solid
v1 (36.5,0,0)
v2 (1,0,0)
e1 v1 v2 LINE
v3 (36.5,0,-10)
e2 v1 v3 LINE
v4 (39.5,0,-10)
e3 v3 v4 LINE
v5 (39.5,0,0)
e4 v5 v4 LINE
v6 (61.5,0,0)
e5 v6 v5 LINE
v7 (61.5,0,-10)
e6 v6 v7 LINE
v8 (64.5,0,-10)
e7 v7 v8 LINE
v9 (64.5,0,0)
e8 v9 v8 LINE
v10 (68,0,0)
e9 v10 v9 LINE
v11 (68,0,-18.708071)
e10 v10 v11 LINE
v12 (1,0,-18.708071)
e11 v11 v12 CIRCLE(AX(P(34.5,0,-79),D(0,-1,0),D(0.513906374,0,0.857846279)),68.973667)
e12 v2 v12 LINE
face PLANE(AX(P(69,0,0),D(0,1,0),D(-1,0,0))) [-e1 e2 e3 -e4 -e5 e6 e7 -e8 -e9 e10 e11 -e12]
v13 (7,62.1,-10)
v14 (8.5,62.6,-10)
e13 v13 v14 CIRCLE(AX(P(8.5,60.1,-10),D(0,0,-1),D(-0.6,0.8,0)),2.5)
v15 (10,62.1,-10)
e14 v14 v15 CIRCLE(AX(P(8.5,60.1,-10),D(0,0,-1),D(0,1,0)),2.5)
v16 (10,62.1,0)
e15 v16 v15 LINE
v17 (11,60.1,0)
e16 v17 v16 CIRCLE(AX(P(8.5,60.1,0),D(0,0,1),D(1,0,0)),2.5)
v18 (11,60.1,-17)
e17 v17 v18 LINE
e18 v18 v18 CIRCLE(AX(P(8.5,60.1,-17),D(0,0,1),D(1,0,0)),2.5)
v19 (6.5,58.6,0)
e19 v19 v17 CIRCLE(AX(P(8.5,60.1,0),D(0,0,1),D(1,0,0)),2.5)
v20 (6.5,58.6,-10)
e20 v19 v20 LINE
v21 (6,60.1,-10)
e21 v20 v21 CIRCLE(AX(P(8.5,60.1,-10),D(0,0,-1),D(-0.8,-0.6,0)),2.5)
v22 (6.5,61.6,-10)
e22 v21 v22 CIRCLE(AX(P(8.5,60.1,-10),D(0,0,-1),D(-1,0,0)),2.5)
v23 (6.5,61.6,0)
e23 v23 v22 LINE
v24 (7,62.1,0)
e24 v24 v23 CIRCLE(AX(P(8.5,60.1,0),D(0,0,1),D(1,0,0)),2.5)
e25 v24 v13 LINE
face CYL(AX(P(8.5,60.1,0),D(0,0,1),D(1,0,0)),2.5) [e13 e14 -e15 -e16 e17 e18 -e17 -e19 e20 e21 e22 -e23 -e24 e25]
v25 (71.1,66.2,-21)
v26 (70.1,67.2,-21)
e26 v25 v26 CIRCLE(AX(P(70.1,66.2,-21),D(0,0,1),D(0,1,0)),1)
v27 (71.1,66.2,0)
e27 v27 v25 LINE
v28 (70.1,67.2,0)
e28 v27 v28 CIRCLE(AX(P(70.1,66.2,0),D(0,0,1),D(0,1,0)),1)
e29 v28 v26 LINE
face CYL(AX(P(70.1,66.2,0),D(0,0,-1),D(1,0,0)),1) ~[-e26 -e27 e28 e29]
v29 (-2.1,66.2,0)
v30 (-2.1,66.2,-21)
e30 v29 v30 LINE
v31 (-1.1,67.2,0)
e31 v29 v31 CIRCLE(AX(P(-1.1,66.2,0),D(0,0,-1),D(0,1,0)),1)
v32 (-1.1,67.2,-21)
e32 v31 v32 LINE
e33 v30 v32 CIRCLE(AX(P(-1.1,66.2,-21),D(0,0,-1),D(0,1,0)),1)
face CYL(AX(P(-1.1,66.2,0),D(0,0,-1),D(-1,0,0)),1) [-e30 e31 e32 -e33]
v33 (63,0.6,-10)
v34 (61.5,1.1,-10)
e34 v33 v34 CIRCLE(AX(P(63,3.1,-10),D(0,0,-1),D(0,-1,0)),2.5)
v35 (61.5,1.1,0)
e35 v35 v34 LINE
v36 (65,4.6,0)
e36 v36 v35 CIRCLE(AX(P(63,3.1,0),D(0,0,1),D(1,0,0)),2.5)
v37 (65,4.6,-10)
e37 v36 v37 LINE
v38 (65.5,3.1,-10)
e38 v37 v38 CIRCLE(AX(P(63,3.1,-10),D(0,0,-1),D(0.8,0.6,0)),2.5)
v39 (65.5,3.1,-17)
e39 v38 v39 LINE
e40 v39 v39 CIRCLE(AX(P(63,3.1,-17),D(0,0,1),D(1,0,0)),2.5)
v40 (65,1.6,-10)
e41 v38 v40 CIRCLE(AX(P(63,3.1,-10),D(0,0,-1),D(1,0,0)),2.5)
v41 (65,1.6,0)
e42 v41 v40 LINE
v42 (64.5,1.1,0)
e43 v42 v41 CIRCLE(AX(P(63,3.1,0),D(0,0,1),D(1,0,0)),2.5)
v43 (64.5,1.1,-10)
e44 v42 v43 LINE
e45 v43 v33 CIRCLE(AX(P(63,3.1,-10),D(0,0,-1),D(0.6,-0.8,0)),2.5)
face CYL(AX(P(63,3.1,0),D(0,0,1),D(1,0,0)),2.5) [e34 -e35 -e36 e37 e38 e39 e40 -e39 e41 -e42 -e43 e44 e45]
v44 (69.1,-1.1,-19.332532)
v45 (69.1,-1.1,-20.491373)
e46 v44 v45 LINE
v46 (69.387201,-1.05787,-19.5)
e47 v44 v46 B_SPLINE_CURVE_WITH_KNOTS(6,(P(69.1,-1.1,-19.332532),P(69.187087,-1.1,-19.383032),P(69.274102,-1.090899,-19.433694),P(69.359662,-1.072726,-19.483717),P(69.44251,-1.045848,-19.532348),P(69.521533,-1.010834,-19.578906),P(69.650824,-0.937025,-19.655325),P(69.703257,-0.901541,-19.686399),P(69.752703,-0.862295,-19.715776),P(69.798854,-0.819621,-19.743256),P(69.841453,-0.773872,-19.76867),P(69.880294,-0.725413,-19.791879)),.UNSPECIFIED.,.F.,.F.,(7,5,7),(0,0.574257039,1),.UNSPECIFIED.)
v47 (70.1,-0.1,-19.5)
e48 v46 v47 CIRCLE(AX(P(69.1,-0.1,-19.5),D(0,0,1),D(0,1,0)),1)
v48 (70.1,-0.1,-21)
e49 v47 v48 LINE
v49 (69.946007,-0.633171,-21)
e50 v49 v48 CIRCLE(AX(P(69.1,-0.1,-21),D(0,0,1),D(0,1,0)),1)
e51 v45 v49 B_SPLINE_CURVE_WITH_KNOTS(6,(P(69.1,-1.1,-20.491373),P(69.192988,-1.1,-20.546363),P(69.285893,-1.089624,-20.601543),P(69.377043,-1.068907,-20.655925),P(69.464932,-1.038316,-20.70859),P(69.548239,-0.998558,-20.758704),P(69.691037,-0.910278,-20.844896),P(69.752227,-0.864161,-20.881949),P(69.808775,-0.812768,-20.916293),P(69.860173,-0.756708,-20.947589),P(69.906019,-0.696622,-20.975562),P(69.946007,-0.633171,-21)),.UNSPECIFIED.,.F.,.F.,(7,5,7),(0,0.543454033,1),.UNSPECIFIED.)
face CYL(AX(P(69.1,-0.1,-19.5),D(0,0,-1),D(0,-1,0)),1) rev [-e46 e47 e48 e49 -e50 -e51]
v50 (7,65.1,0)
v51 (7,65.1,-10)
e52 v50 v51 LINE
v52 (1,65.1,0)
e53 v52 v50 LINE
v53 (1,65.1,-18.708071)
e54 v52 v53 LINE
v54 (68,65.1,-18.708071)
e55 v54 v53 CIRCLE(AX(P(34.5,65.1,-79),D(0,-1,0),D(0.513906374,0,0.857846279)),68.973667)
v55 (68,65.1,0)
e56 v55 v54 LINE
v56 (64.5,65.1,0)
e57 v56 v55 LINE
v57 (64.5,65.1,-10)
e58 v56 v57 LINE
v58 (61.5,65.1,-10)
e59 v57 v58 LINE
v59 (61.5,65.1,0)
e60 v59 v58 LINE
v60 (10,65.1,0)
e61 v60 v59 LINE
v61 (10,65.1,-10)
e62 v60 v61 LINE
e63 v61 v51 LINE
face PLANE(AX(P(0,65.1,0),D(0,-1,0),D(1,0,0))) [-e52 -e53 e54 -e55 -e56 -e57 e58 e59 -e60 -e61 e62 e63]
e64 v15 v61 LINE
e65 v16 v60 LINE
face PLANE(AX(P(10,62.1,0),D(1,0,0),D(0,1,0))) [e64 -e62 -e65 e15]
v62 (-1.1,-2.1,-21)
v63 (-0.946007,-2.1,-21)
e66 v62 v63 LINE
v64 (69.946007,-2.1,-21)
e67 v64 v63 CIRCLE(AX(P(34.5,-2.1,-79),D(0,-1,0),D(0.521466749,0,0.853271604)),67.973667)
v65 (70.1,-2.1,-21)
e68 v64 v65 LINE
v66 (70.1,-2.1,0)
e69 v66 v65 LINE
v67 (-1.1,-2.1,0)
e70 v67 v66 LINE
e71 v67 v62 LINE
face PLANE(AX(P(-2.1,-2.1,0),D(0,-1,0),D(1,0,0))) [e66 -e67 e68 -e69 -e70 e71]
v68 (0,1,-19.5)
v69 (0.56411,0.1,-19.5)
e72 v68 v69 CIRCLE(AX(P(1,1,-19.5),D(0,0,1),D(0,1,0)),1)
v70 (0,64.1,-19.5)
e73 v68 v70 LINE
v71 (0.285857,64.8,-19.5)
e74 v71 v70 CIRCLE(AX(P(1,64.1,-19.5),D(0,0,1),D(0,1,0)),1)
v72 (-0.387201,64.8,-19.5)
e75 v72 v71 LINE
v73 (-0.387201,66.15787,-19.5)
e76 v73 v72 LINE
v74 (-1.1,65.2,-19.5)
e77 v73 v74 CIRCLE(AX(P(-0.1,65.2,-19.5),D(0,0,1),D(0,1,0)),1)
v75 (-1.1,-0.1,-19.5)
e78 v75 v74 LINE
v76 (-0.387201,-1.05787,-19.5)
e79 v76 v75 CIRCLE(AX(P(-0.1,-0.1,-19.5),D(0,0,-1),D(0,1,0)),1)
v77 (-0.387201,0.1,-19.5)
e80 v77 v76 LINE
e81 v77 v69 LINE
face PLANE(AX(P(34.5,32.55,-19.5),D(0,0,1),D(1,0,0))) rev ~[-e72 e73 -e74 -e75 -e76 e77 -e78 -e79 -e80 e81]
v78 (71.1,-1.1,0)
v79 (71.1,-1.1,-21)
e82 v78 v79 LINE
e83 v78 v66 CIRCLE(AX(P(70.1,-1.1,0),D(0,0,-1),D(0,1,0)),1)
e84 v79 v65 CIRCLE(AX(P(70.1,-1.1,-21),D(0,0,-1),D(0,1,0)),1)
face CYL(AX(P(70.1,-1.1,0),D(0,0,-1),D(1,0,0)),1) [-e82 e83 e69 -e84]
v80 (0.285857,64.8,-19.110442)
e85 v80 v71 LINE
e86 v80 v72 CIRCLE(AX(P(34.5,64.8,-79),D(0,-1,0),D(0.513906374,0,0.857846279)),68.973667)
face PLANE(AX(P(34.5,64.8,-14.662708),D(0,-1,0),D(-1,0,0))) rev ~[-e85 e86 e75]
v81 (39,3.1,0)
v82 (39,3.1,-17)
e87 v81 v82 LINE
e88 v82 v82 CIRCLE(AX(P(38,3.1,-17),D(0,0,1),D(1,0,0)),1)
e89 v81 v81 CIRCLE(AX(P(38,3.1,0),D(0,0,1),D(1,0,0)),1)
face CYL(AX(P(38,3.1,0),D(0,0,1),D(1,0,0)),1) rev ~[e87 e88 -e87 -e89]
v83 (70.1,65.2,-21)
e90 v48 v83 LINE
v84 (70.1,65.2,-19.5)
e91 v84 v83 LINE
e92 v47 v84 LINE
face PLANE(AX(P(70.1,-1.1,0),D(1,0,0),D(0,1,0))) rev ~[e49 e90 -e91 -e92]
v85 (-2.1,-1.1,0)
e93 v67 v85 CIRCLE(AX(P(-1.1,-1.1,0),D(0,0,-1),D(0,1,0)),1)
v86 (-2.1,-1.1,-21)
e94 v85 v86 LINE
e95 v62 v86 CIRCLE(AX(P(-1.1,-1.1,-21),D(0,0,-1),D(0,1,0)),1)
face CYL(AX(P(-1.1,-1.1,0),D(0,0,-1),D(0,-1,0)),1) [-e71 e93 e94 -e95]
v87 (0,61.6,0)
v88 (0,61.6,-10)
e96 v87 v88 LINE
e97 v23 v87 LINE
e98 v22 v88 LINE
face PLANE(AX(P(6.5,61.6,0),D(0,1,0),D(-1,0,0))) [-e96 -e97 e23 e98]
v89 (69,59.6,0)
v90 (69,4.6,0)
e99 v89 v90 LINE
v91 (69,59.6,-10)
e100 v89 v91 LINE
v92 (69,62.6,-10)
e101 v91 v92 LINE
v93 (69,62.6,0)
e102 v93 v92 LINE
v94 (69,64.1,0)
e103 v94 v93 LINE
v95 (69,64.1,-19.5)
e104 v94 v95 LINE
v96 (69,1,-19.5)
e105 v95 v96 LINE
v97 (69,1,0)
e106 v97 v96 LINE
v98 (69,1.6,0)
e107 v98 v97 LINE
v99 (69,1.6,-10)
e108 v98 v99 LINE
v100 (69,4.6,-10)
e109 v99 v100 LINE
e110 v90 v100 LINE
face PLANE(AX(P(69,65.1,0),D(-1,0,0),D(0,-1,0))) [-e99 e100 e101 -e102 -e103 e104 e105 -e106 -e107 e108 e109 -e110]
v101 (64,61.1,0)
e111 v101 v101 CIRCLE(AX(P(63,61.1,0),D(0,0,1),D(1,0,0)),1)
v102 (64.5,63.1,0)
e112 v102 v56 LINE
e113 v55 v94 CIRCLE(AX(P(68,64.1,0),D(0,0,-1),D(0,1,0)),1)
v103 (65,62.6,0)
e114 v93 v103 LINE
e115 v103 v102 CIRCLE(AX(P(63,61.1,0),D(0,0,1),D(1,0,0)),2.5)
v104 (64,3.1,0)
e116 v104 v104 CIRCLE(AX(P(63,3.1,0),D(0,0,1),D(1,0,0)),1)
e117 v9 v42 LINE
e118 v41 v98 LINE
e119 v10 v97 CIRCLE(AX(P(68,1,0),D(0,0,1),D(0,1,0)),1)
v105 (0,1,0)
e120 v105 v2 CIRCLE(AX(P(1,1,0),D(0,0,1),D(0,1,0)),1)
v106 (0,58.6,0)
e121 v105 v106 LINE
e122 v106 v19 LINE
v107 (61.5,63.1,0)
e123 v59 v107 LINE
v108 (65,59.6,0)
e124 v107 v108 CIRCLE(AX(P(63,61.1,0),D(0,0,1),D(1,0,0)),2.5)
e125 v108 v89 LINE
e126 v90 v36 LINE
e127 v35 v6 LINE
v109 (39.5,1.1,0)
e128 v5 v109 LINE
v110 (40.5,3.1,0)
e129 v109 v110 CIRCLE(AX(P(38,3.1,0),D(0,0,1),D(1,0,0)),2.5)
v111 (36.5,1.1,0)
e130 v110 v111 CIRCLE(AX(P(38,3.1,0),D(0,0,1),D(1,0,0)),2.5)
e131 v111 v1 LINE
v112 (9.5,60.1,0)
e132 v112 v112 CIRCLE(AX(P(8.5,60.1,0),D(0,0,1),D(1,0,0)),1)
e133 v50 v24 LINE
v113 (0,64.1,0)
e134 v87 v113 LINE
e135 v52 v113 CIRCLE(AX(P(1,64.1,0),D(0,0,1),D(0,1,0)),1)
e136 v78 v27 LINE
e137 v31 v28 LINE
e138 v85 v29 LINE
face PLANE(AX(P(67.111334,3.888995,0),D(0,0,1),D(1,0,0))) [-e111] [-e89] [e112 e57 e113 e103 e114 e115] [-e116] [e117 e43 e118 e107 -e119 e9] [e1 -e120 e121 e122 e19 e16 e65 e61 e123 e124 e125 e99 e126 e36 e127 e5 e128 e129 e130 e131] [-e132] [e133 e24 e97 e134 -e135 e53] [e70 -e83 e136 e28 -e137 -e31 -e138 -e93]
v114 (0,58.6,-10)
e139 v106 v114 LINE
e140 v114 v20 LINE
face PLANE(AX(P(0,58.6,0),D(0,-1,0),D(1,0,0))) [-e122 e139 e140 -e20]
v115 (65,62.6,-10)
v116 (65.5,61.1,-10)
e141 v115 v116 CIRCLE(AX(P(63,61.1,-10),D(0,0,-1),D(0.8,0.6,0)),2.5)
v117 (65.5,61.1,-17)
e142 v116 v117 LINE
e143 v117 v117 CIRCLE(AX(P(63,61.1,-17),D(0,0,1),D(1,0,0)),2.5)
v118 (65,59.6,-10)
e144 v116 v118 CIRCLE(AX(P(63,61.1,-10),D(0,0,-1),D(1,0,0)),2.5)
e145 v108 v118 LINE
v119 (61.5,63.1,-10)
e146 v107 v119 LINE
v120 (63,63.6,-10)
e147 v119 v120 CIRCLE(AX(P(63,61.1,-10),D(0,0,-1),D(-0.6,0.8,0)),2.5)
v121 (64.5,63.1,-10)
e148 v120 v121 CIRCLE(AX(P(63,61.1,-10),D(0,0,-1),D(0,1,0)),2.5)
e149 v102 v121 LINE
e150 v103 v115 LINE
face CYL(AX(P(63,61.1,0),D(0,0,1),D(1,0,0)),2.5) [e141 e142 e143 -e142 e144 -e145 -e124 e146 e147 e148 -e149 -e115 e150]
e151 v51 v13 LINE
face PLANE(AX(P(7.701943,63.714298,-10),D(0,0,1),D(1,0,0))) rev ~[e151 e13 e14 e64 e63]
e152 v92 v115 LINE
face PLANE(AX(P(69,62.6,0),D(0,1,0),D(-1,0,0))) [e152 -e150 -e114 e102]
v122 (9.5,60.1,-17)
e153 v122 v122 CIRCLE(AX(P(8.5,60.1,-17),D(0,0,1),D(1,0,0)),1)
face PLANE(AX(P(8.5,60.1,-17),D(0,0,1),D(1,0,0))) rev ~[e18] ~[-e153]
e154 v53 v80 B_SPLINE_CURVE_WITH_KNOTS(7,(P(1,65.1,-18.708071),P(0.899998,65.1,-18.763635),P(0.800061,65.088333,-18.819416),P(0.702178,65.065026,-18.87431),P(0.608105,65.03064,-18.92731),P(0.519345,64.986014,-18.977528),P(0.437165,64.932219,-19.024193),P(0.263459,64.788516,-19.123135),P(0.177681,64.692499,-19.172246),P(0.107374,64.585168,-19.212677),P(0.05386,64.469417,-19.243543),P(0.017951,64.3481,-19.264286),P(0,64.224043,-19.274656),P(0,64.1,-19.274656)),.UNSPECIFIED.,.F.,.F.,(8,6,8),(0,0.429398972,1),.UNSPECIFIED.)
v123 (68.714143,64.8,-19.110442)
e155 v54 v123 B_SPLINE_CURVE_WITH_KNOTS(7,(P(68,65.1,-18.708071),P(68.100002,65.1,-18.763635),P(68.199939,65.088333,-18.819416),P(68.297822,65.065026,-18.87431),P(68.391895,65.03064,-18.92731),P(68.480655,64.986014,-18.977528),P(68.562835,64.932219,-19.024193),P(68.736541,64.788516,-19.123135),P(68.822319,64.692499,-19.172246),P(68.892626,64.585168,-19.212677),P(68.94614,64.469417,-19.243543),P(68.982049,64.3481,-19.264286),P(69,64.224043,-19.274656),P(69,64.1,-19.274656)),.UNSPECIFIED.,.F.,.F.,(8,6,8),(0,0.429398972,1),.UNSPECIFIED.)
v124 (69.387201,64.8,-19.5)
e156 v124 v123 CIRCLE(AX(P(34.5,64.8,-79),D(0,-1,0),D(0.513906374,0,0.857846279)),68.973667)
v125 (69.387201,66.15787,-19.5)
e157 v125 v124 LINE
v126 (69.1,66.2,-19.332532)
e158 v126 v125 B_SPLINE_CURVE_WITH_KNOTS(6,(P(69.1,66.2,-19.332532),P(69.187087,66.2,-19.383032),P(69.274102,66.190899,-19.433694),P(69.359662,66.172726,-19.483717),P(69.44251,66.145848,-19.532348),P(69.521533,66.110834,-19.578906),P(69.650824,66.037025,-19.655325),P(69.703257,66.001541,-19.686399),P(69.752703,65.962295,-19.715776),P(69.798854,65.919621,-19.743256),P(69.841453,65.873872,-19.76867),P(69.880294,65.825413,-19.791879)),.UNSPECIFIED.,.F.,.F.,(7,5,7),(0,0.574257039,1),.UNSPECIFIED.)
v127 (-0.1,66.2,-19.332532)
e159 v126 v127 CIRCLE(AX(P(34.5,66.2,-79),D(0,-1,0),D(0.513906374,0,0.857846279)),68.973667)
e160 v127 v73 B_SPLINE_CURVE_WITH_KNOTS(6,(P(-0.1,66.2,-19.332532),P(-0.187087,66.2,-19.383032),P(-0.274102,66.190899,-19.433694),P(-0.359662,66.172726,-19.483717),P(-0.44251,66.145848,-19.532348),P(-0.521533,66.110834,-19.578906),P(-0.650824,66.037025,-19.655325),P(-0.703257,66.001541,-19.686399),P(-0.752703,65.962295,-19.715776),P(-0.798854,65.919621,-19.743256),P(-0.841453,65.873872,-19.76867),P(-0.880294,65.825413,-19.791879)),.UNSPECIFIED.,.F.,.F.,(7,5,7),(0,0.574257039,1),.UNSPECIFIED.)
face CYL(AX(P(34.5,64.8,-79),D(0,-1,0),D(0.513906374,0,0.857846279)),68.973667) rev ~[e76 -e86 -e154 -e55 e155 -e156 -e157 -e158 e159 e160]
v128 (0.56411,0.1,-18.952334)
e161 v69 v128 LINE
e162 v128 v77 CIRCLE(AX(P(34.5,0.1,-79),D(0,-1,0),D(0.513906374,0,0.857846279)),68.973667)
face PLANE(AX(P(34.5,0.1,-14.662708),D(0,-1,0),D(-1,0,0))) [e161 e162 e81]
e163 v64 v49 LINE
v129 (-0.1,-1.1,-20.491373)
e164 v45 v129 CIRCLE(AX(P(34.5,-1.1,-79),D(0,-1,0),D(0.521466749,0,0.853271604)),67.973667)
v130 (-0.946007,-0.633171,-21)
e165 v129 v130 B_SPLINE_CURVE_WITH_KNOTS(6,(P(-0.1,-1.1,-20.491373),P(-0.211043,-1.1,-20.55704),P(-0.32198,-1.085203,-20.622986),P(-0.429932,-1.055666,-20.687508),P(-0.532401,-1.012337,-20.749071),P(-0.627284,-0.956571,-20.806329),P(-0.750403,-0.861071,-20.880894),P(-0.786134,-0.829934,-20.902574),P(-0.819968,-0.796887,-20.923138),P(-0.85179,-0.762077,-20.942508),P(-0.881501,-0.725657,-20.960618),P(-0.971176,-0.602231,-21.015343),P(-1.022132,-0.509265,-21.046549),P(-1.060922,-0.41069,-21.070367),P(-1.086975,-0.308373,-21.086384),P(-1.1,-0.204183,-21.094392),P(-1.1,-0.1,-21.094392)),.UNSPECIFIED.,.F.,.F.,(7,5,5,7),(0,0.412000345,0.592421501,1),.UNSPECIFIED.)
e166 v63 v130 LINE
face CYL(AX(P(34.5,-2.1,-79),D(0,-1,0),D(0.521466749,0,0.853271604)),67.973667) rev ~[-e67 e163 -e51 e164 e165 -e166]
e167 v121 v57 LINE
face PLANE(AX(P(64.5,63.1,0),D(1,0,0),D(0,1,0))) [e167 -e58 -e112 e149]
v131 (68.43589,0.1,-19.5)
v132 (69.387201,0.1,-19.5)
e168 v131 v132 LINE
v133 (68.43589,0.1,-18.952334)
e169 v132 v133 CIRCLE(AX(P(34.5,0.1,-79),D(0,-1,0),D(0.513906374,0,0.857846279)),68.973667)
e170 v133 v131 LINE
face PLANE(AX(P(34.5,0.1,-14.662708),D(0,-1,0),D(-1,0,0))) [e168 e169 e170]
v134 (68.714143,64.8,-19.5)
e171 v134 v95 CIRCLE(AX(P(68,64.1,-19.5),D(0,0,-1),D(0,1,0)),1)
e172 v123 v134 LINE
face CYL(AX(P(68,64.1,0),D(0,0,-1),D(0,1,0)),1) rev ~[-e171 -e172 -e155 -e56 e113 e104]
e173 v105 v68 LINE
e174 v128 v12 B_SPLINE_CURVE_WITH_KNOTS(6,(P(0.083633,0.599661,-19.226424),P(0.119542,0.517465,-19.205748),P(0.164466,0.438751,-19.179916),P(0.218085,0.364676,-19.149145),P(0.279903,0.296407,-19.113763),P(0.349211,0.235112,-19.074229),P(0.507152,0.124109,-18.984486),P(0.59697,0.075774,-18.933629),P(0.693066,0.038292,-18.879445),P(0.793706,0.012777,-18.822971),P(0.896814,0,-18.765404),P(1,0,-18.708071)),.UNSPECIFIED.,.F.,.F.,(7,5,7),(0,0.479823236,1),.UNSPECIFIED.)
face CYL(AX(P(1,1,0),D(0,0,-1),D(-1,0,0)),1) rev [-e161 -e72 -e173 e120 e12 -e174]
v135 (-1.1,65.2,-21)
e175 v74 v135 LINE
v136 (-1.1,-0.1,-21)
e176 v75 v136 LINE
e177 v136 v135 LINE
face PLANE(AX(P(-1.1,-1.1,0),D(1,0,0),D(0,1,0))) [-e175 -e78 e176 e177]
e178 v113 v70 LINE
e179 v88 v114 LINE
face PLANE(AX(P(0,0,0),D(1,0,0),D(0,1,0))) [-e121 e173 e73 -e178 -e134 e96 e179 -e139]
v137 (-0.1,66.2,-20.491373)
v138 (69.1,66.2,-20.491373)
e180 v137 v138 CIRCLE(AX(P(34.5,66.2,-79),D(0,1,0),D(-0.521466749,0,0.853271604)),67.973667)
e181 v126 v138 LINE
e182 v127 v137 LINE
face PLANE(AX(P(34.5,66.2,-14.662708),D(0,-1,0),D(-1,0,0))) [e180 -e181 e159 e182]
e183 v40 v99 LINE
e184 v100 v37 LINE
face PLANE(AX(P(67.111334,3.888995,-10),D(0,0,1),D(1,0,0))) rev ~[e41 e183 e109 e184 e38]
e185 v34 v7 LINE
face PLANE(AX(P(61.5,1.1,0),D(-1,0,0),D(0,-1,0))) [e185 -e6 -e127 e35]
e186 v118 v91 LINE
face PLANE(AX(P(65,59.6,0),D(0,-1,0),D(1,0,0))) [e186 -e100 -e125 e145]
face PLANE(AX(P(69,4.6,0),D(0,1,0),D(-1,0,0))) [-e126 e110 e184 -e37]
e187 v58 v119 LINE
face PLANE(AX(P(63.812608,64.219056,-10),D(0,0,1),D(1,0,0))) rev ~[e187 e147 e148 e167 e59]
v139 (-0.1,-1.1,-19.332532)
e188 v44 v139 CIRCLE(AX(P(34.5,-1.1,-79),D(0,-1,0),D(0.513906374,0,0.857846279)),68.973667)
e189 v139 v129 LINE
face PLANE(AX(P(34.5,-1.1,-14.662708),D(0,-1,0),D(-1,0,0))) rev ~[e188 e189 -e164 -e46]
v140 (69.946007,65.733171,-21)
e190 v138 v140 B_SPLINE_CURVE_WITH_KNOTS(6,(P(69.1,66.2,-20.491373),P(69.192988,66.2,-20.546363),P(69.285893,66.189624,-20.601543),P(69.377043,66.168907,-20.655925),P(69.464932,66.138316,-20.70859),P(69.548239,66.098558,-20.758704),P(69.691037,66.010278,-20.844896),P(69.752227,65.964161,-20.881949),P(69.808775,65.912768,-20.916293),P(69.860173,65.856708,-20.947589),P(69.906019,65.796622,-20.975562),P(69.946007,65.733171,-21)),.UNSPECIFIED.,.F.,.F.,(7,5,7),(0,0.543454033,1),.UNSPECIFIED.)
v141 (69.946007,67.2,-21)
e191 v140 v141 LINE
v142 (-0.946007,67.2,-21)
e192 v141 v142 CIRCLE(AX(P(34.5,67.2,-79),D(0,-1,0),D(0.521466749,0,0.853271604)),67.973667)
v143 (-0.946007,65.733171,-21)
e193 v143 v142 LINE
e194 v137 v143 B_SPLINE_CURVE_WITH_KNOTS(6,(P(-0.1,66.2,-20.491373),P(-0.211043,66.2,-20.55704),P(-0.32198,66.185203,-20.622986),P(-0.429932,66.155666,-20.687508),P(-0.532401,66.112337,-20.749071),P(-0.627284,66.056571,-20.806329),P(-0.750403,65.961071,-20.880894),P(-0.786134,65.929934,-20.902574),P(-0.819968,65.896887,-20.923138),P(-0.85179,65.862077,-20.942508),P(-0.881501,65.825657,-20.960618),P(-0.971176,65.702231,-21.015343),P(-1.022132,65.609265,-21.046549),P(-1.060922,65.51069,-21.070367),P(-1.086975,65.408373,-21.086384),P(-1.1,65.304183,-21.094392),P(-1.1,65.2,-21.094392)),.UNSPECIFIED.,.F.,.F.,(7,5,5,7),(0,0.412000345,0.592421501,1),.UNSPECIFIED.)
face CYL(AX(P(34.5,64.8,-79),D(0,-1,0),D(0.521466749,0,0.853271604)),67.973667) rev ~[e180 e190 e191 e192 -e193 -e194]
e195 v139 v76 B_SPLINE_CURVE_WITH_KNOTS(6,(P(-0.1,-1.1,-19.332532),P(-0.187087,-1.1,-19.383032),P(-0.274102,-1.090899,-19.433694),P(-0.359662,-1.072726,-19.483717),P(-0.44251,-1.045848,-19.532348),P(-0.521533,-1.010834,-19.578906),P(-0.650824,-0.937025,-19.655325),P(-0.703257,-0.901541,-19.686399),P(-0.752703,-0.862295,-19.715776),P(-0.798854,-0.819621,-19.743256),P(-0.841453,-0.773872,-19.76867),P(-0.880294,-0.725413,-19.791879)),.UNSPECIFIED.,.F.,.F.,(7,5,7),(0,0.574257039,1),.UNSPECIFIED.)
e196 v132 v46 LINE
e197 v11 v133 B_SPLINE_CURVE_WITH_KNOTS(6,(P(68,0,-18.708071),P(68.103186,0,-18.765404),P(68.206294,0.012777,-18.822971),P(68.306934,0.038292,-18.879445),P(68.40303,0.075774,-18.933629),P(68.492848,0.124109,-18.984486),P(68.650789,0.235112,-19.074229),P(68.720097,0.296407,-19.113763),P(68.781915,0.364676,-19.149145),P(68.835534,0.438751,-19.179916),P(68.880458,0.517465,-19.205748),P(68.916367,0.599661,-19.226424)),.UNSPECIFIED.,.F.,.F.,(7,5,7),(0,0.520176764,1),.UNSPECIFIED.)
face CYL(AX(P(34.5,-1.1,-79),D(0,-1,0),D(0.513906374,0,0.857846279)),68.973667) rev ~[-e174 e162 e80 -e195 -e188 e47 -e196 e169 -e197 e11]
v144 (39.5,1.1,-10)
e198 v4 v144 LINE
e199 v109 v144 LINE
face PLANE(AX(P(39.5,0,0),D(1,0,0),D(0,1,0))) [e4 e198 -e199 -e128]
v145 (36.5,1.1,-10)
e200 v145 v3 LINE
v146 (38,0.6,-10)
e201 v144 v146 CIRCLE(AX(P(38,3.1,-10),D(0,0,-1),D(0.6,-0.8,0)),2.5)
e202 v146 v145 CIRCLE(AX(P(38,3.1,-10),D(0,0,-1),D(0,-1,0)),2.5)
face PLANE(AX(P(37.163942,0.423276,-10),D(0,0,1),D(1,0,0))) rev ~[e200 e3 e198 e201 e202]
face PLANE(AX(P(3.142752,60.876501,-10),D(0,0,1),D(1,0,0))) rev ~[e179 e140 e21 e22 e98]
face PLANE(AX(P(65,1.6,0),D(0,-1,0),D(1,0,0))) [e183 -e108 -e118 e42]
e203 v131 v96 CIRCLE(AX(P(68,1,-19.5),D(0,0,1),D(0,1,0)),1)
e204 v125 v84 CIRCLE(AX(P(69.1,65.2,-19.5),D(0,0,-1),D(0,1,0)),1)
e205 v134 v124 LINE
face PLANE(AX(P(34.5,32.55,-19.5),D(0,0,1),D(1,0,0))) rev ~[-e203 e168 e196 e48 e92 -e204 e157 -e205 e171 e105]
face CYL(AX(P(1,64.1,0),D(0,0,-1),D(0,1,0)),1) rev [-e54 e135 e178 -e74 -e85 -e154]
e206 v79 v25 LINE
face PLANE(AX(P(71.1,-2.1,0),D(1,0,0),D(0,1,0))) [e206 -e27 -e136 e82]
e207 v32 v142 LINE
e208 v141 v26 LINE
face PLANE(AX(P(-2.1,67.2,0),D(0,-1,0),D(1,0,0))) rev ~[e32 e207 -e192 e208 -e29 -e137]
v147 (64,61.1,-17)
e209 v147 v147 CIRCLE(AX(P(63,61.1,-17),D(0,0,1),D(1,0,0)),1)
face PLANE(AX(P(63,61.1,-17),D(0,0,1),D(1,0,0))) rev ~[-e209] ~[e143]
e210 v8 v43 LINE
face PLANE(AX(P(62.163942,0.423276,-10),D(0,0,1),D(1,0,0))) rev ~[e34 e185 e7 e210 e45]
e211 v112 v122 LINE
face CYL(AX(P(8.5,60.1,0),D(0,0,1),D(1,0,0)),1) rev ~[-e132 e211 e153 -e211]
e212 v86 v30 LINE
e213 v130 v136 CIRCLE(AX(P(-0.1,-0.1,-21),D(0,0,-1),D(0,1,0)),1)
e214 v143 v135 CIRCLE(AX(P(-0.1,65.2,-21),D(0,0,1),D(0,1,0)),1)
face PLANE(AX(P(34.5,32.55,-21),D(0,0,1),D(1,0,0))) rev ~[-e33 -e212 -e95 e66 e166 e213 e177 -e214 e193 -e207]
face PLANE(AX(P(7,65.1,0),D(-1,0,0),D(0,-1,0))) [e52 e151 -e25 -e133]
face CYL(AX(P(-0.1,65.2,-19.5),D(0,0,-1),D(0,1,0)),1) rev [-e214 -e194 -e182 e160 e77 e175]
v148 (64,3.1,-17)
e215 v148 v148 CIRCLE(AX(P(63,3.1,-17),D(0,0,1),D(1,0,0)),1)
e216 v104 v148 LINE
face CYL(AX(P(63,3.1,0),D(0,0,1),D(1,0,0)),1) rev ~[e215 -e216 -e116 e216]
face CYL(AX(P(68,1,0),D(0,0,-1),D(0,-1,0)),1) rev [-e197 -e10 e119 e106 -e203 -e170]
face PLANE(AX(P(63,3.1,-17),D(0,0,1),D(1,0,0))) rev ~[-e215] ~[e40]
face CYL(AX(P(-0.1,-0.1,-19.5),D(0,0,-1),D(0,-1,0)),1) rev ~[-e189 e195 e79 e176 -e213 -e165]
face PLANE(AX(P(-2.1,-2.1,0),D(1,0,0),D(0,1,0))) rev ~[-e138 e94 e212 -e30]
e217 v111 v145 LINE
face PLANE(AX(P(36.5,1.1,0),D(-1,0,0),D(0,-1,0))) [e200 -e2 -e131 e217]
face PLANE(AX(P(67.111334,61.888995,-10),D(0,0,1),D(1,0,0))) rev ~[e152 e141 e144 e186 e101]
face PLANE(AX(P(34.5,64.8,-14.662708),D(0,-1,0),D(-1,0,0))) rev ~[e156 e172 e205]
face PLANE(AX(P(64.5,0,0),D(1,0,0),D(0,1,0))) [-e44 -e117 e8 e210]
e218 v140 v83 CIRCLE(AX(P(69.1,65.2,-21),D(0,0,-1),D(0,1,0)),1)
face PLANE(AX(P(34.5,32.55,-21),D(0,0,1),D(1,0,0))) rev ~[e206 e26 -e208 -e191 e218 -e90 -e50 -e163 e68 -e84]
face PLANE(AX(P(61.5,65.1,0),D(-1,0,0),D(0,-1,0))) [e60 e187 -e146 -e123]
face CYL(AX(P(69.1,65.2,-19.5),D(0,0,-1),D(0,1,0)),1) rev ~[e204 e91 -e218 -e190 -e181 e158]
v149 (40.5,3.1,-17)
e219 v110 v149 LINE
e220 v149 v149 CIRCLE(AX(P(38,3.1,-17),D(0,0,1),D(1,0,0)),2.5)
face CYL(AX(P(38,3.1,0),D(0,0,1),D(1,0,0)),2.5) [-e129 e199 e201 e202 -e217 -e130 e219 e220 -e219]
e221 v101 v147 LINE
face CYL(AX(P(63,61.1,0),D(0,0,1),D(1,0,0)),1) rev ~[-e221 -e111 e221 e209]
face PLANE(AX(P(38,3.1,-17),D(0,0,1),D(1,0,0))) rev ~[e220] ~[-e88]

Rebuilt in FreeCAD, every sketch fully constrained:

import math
import FreeCAD as App
import Part
import Sketcher


def edges_at(feature, points):
    """Names of the edges that pass closest to the given points."""
    edges = feature.Shape.Edges
    near = lambda p: min(range(len(edges)), key=lambda i: edges[i].distToShape(Part.Vertex(*p))[0])
    return sorted({f"Edge{near(p) + 1}" for p in points})


def add_polygon(sketch, points):
    """Adds a closed chain of lines whose ends are joined by coincident constraints."""
    first, n = sketch.GeometryCount, len(points)
    for a, b in zip(points, points[1:] + points[:1]):
        sketch.addGeometry(Part.LineSegment(App.Vector(*a, 0), App.Vector(*b, 0)), False)
    for i in range(n):
        sketch.addConstraint(Sketcher.Constraint("Coincident", first + i, 2, first + (i + 1) % n, 1))

doc = App.newDocument("Part")
params = doc.addObject("Spreadsheet::Sheet", "Params")
for row, (alias, value) in enumerate([
    ("sketch1_diameter", "5 mm"),
    ("sketch1_diameter2", "2 mm"),
    ("pad1_length", "17 mm"),
    ("sketch2_diameter", "5 mm"),
    ("sketch2_diameter2", "2 mm"),
    ("pad2_length", "17 mm"),
    ("sketch3_diameter", "5 mm"),
    ("sketch3_diameter2", "2 mm"),
    ("pad3_length", "17 mm"),
    ("sketch4_diameter", "5 mm"),
    ("sketch4_diameter2", "2 mm"),
    ("pad4_length", "17 mm"),
    ("sketch5_width", "73.2 mm"),
    ("sketch5_width2", "71.2 mm"),
    ("sketch5_height", "69.3 mm"),
    ("sketch5_height2", "67.3 mm"),
    ("pad5_length", "21 mm"),
    ("sketch6_width", "69 mm"),
    ("sketch6_width2", "71.2 mm"),
    ("sketch6_height", "67.3 mm"),
    ("sketch6_height2", "65.1 mm"),
    ("pad6_length", "19.5 mm"),
    ("pocket1_length", "2.1 mm"),
    ("pocket2_length", "1.2 mm"),
    ("pocket3_length", "1.4 mm"),
    ("sketch10_radius", "2.5 mm"),
    ("sketch10_width", "3 mm"),
    ("sketch10_width2", "4 mm"),
    ("sketch10_width3", "6.5 mm"),
    ("sketch10_height", "1.1 mm"),
    ("pad7_length", "10 mm"),
    ("pocket4_length", "10 mm"),
    ("fillet_radius", "1 mm"),
    ("fillet2_radius", "1 mm"),
], start=1):
    params.set(f"A{row}", alias)
    params.set(f"B{row}", "=" + value)
    params.setAlias(f"B{row}", alias)

body = doc.addObject("PartDesign::Body", "Body")

# Sketch on XY plane
sketch1 = body.newObject("Sketcher::SketchObject", "Sketch")
sketch1.AttachmentSupport = (doc.getObject("XY_Plane"), [""])
sketch1.MapMode = "FlatFace"
sketch1.addGeometry([
    Part.Circle(App.Vector(63, 61.1, 0), App.Vector(0, 0, 1), 2.5),
    Part.Circle(App.Vector(63, 61.1, 0), App.Vector(0, 0, 1), 1),
], False)
sketch1.addConstraint([
    Sketcher.Constraint("Coincident", 1, 3, 0, 3),
    Sketcher.Constraint("Diameter", 0, 5.0),
    Sketcher.Constraint("Diameter", 1, 2.0),
    Sketcher.Constraint("DistanceX", -1, 1, 0, 3, 63.0),
    Sketcher.Constraint("DistanceY", -1, 1, 0, 3, 61.1),
])
sketch1.setExpression("Constraints[1]", "Params.sketch1_diameter")
sketch1.setExpression("Constraints[2]", "Params.sketch1_diameter2")
pad1 = body.newObject("PartDesign::Pad", "Pad")
pad1.Profile = sketch1
pad1.setExpression("Length", "Params.pad1_length")
pad1.Reversed = True
body2 = doc.addObject("PartDesign::Body", "Body001")

# Sketch on XY plane
sketch2 = body2.newObject("Sketcher::SketchObject", "Sketch001")
sketch2.AttachmentSupport = (doc.getObject("XY_Plane001"), [""])
sketch2.MapMode = "FlatFace"
sketch2.addGeometry([
    Part.Circle(App.Vector(63, 3.1, 0), App.Vector(0, 0, 1), 2.5),
    Part.Circle(App.Vector(63, 3.1, 0), App.Vector(0, 0, 1), 1),
], False)
sketch2.addConstraint([
    Sketcher.Constraint("Coincident", 1, 3, 0, 3),
    Sketcher.Constraint("Diameter", 0, 5.0),
    Sketcher.Constraint("Diameter", 1, 2.0),
    Sketcher.Constraint("DistanceX", -1, 1, 0, 3, 63.0),
    Sketcher.Constraint("DistanceY", -1, 1, 0, 3, 3.1),
])
sketch2.setExpression("Constraints[1]", "Params.sketch2_diameter")
sketch2.setExpression("Constraints[2]", "Params.sketch2_diameter2")
pad2 = body2.newObject("PartDesign::Pad", "Pad001")
pad2.Profile = sketch2
pad2.setExpression("Length", "Params.pad2_length")
pad2.Reversed = True
body3 = doc.addObject("PartDesign::Body", "Body002")

# Sketch on XY plane
sketch3 = body3.newObject("Sketcher::SketchObject", "Sketch002")
sketch3.AttachmentSupport = (doc.getObject("XY_Plane002"), [""])
sketch3.MapMode = "FlatFace"
sketch3.addGeometry([
    Part.Circle(App.Vector(8.5, 60.1, 0), App.Vector(0, 0, 1), 2.5),
    Part.Circle(App.Vector(8.5, 60.1, 0), App.Vector(0, 0, 1), 1),
], False)
sketch3.addConstraint([
    Sketcher.Constraint("Coincident", 1, 3, 0, 3),
    Sketcher.Constraint("Diameter", 0, 5.0),
    Sketcher.Constraint("Diameter", 1, 2.0),
    Sketcher.Constraint("DistanceX", -1, 1, 0, 3, 8.5),
    Sketcher.Constraint("DistanceY", -1, 1, 0, 3, 60.1),
])
sketch3.setExpression("Constraints[1]", "Params.sketch3_diameter")
sketch3.setExpression("Constraints[2]", "Params.sketch3_diameter2")
pad3 = body3.newObject("PartDesign::Pad", "Pad002")
pad3.Profile = sketch3
pad3.setExpression("Length", "Params.pad3_length")
pad3.Reversed = True
body4 = doc.addObject("PartDesign::Body", "Body003")

# Sketch on XY plane
sketch4 = body4.newObject("Sketcher::SketchObject", "Sketch003")
sketch4.AttachmentSupport = (doc.getObject("XY_Plane003"), [""])
sketch4.MapMode = "FlatFace"
sketch4.addGeometry([
    Part.Circle(App.Vector(38, 3.1, 0), App.Vector(0, 0, 1), 2.5),
    Part.Circle(App.Vector(38, 3.1, 0), App.Vector(0, 0, 1), 1),
], False)
sketch4.addConstraint([
    Sketcher.Constraint("Coincident", 1, 3, 0, 3),
    Sketcher.Constraint("Diameter", 0, 5.0),
    Sketcher.Constraint("Diameter", 1, 2.0),
    Sketcher.Constraint("DistanceX", -1, 1, 0, 3, 38.0),
    Sketcher.Constraint("DistanceY", -1, 1, 0, 3, 3.1),
])
sketch4.setExpression("Constraints[1]", "Params.sketch4_diameter")
sketch4.setExpression("Constraints[2]", "Params.sketch4_diameter2")
pad4 = body4.newObject("PartDesign::Pad", "Pad003")
pad4.Profile = sketch4
pad4.setExpression("Length", "Params.pad4_length")
pad4.Reversed = True
body5 = doc.addObject("PartDesign::Body", "Body004")

# Sketch on XY plane
sketch5 = body5.newObject("Sketcher::SketchObject", "Sketch004")
sketch5.AttachmentSupport = (doc.getObject("XY_Plane004"), [""])
sketch5.MapMode = "FlatFace"
add_polygon(sketch5, [(-2.1, 67.2), (-2.1, -2.1), (71.1, -2.1), (71.1, 67.2)])  # lines 0-3
add_polygon(sketch5, [(70.1, -1.1), (-1.1, -1.1), (-1.1, 66.2), (70.1, 66.2)])  # lines 4-7
sketch5.addConstraint([
    Sketcher.Constraint("Vertical", 0),
    Sketcher.Constraint("Horizontal", 1),
    Sketcher.Constraint("Vertical", 2),
    Sketcher.Constraint("Horizontal", 3),
    Sketcher.Constraint("Horizontal", 4),
    Sketcher.Constraint("Vertical", 5),
    Sketcher.Constraint("Horizontal", 6),
    Sketcher.Constraint("Vertical", 7),
    Sketcher.Constraint("DistanceX", 1, 1, 1, 2, 73.2),
    Sketcher.Constraint("DistanceX", 4, 2, 4, 1, 71.2),
    Sketcher.Constraint("DistanceY", 0, 2, 0, 1, 69.3),
    Sketcher.Constraint("DistanceY", 5, 1, 5, 2, 67.3),
    Sketcher.Constraint("DistanceX", 0, 2, 4, 2, 1.0),
    Sketcher.Constraint("DistanceY", 0, 2, 4, 2, 1.0),
    Sketcher.Constraint("DistanceX", 0, 2, -1, 1, 2.1),
    Sketcher.Constraint("DistanceY", 0, 2, -1, 1, 2.1),
])
sketch5.setExpression("Constraints[16]", "Params.sketch5_width")
sketch5.setExpression("Constraints[17]", "Params.sketch5_width2")
sketch5.setExpression("Constraints[18]", "Params.sketch5_height")
sketch5.setExpression("Constraints[19]", "Params.sketch5_height2")
pad5 = body5.newObject("PartDesign::Pad", "Pad004")
pad5.Profile = sketch5
pad5.setExpression("Length", "Params.pad5_length")
pad5.Reversed = True

# Sketch on XY plane
sketch6 = body5.newObject("Sketcher::SketchObject", "Sketch005")
sketch6.AttachmentSupport = (doc.getObject("XY_Plane004"), [""])
sketch6.MapMode = "FlatFace"
add_polygon(sketch6, [(-1.1, 66.2), (-1.1, -1.1), (70.1, -1.1), (70.1, 66.2)])  # lines 0-3
add_polygon(sketch6, [(69, 0), (0, 0), (0, 65.1), (69, 65.1)])  # lines 4-7
sketch6.addConstraint([
    Sketcher.Constraint("Vertical", 0),
    Sketcher.Constraint("Horizontal", 1),
    Sketcher.Constraint("Vertical", 2),
    Sketcher.Constraint("Horizontal", 3),
    Sketcher.Constraint("Horizontal", 4),
    Sketcher.Constraint("Vertical", 5),
    Sketcher.Constraint("Horizontal", 6),
    Sketcher.Constraint("Vertical", 7),
    Sketcher.Constraint("Coincident", 4, 2, -1, 1),
    Sketcher.Constraint("DistanceX", 4, 2, 4, 1, 69.0),
    Sketcher.Constraint("DistanceX", 1, 1, 1, 2, 71.2),
    Sketcher.Constraint("DistanceY", 0, 2, 0, 1, 67.3),
    Sketcher.Constraint("DistanceY", 5, 1, 5, 2, 65.1),
    Sketcher.Constraint("DistanceX", 0, 2, -1, 1, 1.1),
    Sketcher.Constraint("DistanceY", 0, 2, -1, 1, 1.1),
])
sketch6.setExpression("Constraints[17]", "Params.sketch6_width")
sketch6.setExpression("Constraints[18]", "Params.sketch6_width2")
sketch6.setExpression("Constraints[19]", "Params.sketch6_height")
sketch6.setExpression("Constraints[20]", "Params.sketch6_height2")
pad6 = body5.newObject("PartDesign::Pad", "Pad005")
pad6.Profile = sketch6
pad6.setExpression("Length", "Params.pad6_length")
pad6.Reversed = True

# Sketch on XZ plane
sketch7 = body5.newObject("Sketcher::SketchObject", "Sketch006")
sketch7.AttachmentSupport = (doc.getObject("XZ_Plane004"), [""])
sketch7.MapMode = "FlatFace"
sketch7.AttachmentOffset = App.Placement(App.Vector(0, 0, 2.1), App.Rotation())
sketch7.addGeometry([
    Part.ArcOfCircle(Part.Circle(App.Vector(34.5, -79, 0), App.Vector(0, 0, 1), 67.973667), math.radians(58.56931), math.radians(121.43069)),
    Part.ArcOfCircle(Part.Circle(App.Vector(34.5, -79, 0), App.Vector(0, 0, 1), 67.973667), math.radians(121.43069), math.radians(180)),
    Part.ArcOfCircle(Part.Circle(App.Vector(34.5, -79, 0), App.Vector(0, 0, 1), 67.973667), math.radians(180), math.radians(418.56931)),
], False)
sketch7.addConstraint([
    Sketcher.Constraint("Tangent", 0, 2, 1, 1),
    Sketcher.Constraint("Tangent", 1, 2, 2, 1),
    Sketcher.Constraint("Tangent", 2, 2, 0, 1),
    Sketcher.Constraint("Horizontal", 2, 3, 1, 2),
    Sketcher.Constraint("Horizontal", 0, 2, 2, 2),
    Sketcher.Constraint("DistanceY", 0, 3, -1, 1, 79.0),
    Sketcher.Constraint("DistanceY", 0, 2, -1, 1, 21.0),
    Sketcher.Constraint("DistanceX", -1, 1, 0, 3, 34.5),
    Sketcher.Constraint("Radius", 0, 67.973667),
])
pocket1 = body5.newObject("PartDesign::Pocket", "Pocket")
pocket1.Profile = sketch7
pocket1.setExpression("Length", "Params.pocket1_length")

# Sketch on XZ plane
sketch8 = body5.newObject("Sketcher::SketchObject", "Sketch007")
sketch8.AttachmentSupport = (doc.getObject("XZ_Plane004"), [""])
sketch8.MapMode = "FlatFace"
sketch8.AttachmentOffset = App.Placement(App.Vector(0, 0, 1.1), App.Rotation())
sketch8.addGeometry([
    Part.LineSegment(App.Vector(-0.946007, -19.831196, 0), App.Vector(-0.946007, -21, 0)),
    Part.ArcOfCircle(Part.Circle(App.Vector(34.5, -79, 0), App.Vector(0, 0, 1), 67.973667), math.radians(58.56931), math.radians(121.43069)),
    Part.LineSegment(App.Vector(69.946007, -21, 0), App.Vector(69.946007, -19.831196, 0)),
    Part.ArcOfCircle(Part.Circle(App.Vector(34.5, -79, 0), App.Vector(0, 0, 1), 68.973667), math.radians(59.075617), math.radians(120.924383)),
], False)
sketch8.addConstraint([
    Sketcher.Constraint("Coincident", 0, 2, 1, 2),
    Sketcher.Constraint("Coincident", 1, 1, 2, 1),
    Sketcher.Constraint("Coincident", 2, 2, 3, 1),
    Sketcher.Constraint("Coincident", 3, 2, 0, 1),
    Sketcher.Constraint("Vertical", 0),
    Sketcher.Constraint("Vertical", 2),
    Sketcher.Constraint("Coincident", 3, 3, 1, 3),
    Sketcher.Constraint("Horizontal", 0, 2, 1, 1),
    Sketcher.Constraint("DistanceY", 1, 3, -1, 1, 79.0),
    Sketcher.Constraint("DistanceY", 0, 2, -1, 1, 21.0),
    Sketcher.Constraint("DistanceX", -1, 1, 1, 3, 34.5),
    Sketcher.Constraint("Radius", 1, 67.973667),
    Sketcher.Constraint("Radius", 3, 68.973667),
])
pocket2 = body5.newObject("PartDesign::Pocket", "Pocket001")
pocket2.Profile = sketch8
pocket2.setExpression("Length", "Params.pocket2_length")

# Sketch on XZ plane
sketch9 = body5.newObject("Sketcher::SketchObject", "Sketch008")
sketch9.AttachmentSupport = (doc.getObject("XZ_Plane004"), [""])
sketch9.MapMode = "FlatFace"
sketch9.AttachmentOffset = App.Placement(App.Vector(0, 0, -64.8), App.Rotation())
sketch9.addGeometry([
    Part.LineSegment(App.Vector(-0.946007, -19.831196, 0), App.Vector(-0.946007, -21, 0)),
    Part.ArcOfCircle(Part.Circle(App.Vector(34.5, -79, 0), App.Vector(0, 0, 1), 67.973667), math.radians(58.56931), math.radians(121.43069)),
    Part.LineSegment(App.Vector(69.946007, -21, 0), App.Vector(69.946007, -19.831196, 0)),
    Part.ArcOfCircle(Part.Circle(App.Vector(34.5, -79, 0), App.Vector(0, 0, 1), 68.973667), math.radians(59.075617), math.radians(120.924383)),
], False)
sketch9.addConstraint([
    Sketcher.Constraint("Coincident", 0, 2, 1, 2),
    Sketcher.Constraint("Coincident", 1, 1, 2, 1),
    Sketcher.Constraint("Coincident", 2, 2, 3, 1),
    Sketcher.Constraint("Coincident", 3, 2, 0, 1),
    Sketcher.Constraint("Vertical", 0),
    Sketcher.Constraint("Vertical", 2),
    Sketcher.Constraint("Coincident", 3, 3, 1, 3),
    Sketcher.Constraint("Horizontal", 0, 2, 1, 1),
    Sketcher.Constraint("DistanceY", 1, 3, -1, 1, 79.0),
    Sketcher.Constraint("DistanceY", 0, 2, -1, 1, 21.0),
    Sketcher.Constraint("DistanceX", -1, 1, 1, 3, 34.5),
    Sketcher.Constraint("Radius", 1, 67.973667),
    Sketcher.Constraint("Radius", 3, 68.973667),
])
pocket3 = body5.newObject("PartDesign::Pocket", "Pocket002")
pocket3.Profile = sketch9
pocket3.setExpression("Length", "Params.pocket3_length")
body.AllowCompound = True
doc.recompute()

boolean = body.newObject("PartDesign::Boolean", "Boolean")
boolean.Type = "Fuse"
boolean.addObjects([body2])
doc.recompute()

boolean2 = body.newObject("PartDesign::Boolean", "Boolean001")
boolean2.Type = "Fuse"
boolean2.addObjects([body3])
doc.recompute()

boolean3 = body.newObject("PartDesign::Boolean", "Boolean002")
boolean3.Type = "Fuse"
boolean3.addObjects([body4])
doc.recompute()

boolean4 = body.newObject("PartDesign::Boolean", "Boolean003")
boolean4.Type = "Fuse"
boolean4.addObjects([body5])

# Sketch on XY plane
sketch10 = body.newObject("Sketcher::SketchObject", "Sketch009")
sketch10.AttachmentSupport = (doc.getObject("XY_Plane"), [""])
sketch10.MapMode = "FlatFace"
sketch10.addGeometry([
    Part.LineSegment(App.Vector(36.5, 1.1, 0), App.Vector(36.5, 0, 0)),  # 0
    Part.LineSegment(App.Vector(36.5, 0, 0), App.Vector(39.5, 0, 0)),  # 1
    Part.LineSegment(App.Vector(39.5, 0, 0), App.Vector(39.5, 1.1, 0)),  # 2
    Part.ArcOfCircle(Part.Circle(App.Vector(38, 3.1, 0), App.Vector(0, 0, 1), 2.5), math.radians(-90), math.radians(-53.130102)),  # 3
    Part.ArcOfCircle(Part.Circle(App.Vector(38, 3.1, 0), App.Vector(0, 0, 1), 2.5), math.radians(-126.869898), math.radians(-90)),  # 4
    Part.LineSegment(App.Vector(61.5, 1.1, 0), App.Vector(61.5, 0, 0)),  # 5
    Part.LineSegment(App.Vector(61.5, 0, 0), App.Vector(64.5, 0, 0)),  # 6
    Part.LineSegment(App.Vector(64.5, 0, 0), App.Vector(64.5, 1.1, 0)),  # 7
    Part.ArcOfCircle(Part.Circle(App.Vector(63, 3.1, 0), App.Vector(0, 0, 1), 2.5), math.radians(-90), math.radians(-53.130102)),  # 8
    Part.ArcOfCircle(Part.Circle(App.Vector(63, 3.1, 0), App.Vector(0, 0, 1), 2.5), math.radians(-126.869898), math.radians(-90)),  # 9
    Part.LineSegment(App.Vector(69, 4.6, 0), App.Vector(65, 4.6, 0)),  # 10
    Part.ArcOfCircle(Part.Circle(App.Vector(63, 3.1, 0), App.Vector(0, 0, 1), 2.5), math.radians(0), math.radians(36.869898)),  # 11
    Part.ArcOfCircle(Part.Circle(App.Vector(63, 3.1, 0), App.Vector(0, 0, 1), 2.5), math.radians(-36.869898), math.radians(0)),  # 12
    Part.LineSegment(App.Vector(65, 1.6, 0), App.Vector(69, 1.6, 0)),  # 13
    Part.LineSegment(App.Vector(69, 1.6, 0), App.Vector(69, 4.6, 0)),  # 14
    Part.LineSegment(App.Vector(69, 62.6, 0), App.Vector(65, 62.6, 0)),  # 15
    Part.ArcOfCircle(Part.Circle(App.Vector(63, 61.1, 0), App.Vector(0, 0, 1), 2.5), math.radians(0), math.radians(36.869898)),  # 16
    Part.ArcOfCircle(Part.Circle(App.Vector(63, 61.1, 0), App.Vector(0, 0, 1), 2.5), math.radians(-36.869898), math.radians(0)),  # 17
    Part.LineSegment(App.Vector(65, 59.6, 0), App.Vector(69, 59.6, 0)),  # 18
    Part.LineSegment(App.Vector(69, 59.6, 0), App.Vector(69, 62.6, 0)),  # 19
    Part.LineSegment(App.Vector(64.5, 65.1, 0), App.Vector(61.5, 65.1, 0)),  # 20
    Part.LineSegment(App.Vector(61.5, 65.1, 0), App.Vector(61.5, 63.1, 0)),  # 21
    Part.ArcOfCircle(Part.Circle(App.Vector(63, 61.1, 0), App.Vector(0, 0, 1), 2.5), math.radians(90), math.radians(126.869898)),  # 22
    Part.ArcOfCircle(Part.Circle(App.Vector(63, 61.1, 0), App.Vector(0, 0, 1), 2.5), math.radians(53.130102), math.radians(90)),  # 23
    Part.LineSegment(App.Vector(64.5, 63.1, 0), App.Vector(64.5, 65.1, 0)),  # 24
    Part.LineSegment(App.Vector(7, 65.1, 0), App.Vector(7, 62.1, 0)),  # 25
    Part.ArcOfCircle(Part.Circle(App.Vector(8.5, 60.1, 0), App.Vector(0, 0, 1), 2.5), math.radians(90), math.radians(126.869898)),  # 26
    Part.ArcOfCircle(Part.Circle(App.Vector(8.5, 60.1, 0), App.Vector(0, 0, 1), 2.5), math.radians(53.130102), math.radians(90)),  # 27
    Part.LineSegment(App.Vector(10, 62.1, 0), App.Vector(10, 65.1, 0)),  # 28
    Part.LineSegment(App.Vector(10, 65.1, 0), App.Vector(7, 65.1, 0)),  # 29
    Part.LineSegment(App.Vector(0, 61.6, 0), App.Vector(0, 58.6, 0)),  # 30
    Part.LineSegment(App.Vector(0, 58.6, 0), App.Vector(6.5, 58.6, 0)),  # 31
    Part.ArcOfCircle(Part.Circle(App.Vector(8.5, 60.1, 0), App.Vector(0, 0, 1), 2.5), math.radians(-180), math.radians(-143.130102)),  # 32
    Part.ArcOfCircle(Part.Circle(App.Vector(8.5, 60.1, 0), App.Vector(0, 0, 1), 2.5), math.radians(143.130102), math.radians(180)),  # 33
    Part.LineSegment(App.Vector(6.5, 61.6, 0), App.Vector(0, 61.6, 0)),  # 34
], False)
sketch10.addConstraint([
    Sketcher.Constraint("Coincident", 0, 2, 1, 1),
    Sketcher.Constraint("Coincident", 1, 2, 2, 1),
    Sketcher.Constraint("Coincident", 2, 2, 3, 2),
    Sketcher.Constraint("Tangent", 3, 1, 4, 2),
    Sketcher.Constraint("Coincident", 4, 1, 0, 1),
    Sketcher.Constraint("Coincident", 5, 2, 6, 1),
    Sketcher.Constraint("Coincident", 6, 2, 7, 1),
    Sketcher.Constraint("Coincident", 7, 2, 8, 2),
    Sketcher.Constraint("Tangent", 8, 1, 9, 2),
    Sketcher.Constraint("Coincident", 9, 1, 5, 1),
    Sketcher.Constraint("Coincident", 10, 2, 11, 2),
    Sketcher.Constraint("Tangent", 11, 1, 12, 2),
    Sketcher.Constraint("Coincident", 12, 1, 13, 1),
    Sketcher.Constraint("Coincident", 13, 2, 14, 1),
    Sketcher.Constraint("Coincident", 14, 2, 10, 1),
    Sketcher.Constraint("Coincident", 15, 2, 16, 2),
    Sketcher.Constraint("Tangent", 16, 1, 17, 2),
    Sketcher.Constraint("Coincident", 17, 1, 18, 1),
    Sketcher.Constraint("Coincident", 18, 2, 19, 1),
    Sketcher.Constraint("Coincident", 19, 2, 15, 1),
    Sketcher.Constraint("Coincident", 20, 2, 21, 1),
    Sketcher.Constraint("Coincident", 21, 2, 22, 2),
    Sketcher.Constraint("Tangent", 22, 1, 23, 2),
    Sketcher.Constraint("Coincident", 23, 1, 24, 1),
    Sketcher.Constraint("Coincident", 24, 2, 20, 1),
    Sketcher.Constraint("Coincident", 25, 2, 26, 2),
    Sketcher.Constraint("Tangent", 26, 1, 27, 2),
    Sketcher.Constraint("Coincident", 27, 1, 28, 1),
    Sketcher.Constraint("Coincident", 28, 2, 29, 1),
    Sketcher.Constraint("Coincident", 29, 2, 25, 1),
    Sketcher.Constraint("Coincident", 30, 2, 31, 1),
    Sketcher.Constraint("Coincident", 31, 2, 32, 2),
    Sketcher.Constraint("Tangent", 32, 1, 33, 2),
    Sketcher.Constraint("Coincident", 33, 1, 34, 1),
    Sketcher.Constraint("Coincident", 34, 2, 30, 1),
    Sketcher.Constraint("Vertical", 0),
    Sketcher.Constraint("Horizontal", 1),
    Sketcher.Constraint("Vertical", 2),
    Sketcher.Constraint("Vertical", 5),
    Sketcher.Constraint("Horizontal", 6),
    Sketcher.Constraint("Vertical", 7),
    Sketcher.Constraint("Horizontal", 10),
    Sketcher.Constraint("Horizontal", 13),
    Sketcher.Constraint("Vertical", 14),
    Sketcher.Constraint("Horizontal", 15),
    Sketcher.Constraint("Horizontal", 18),
    Sketcher.Constraint("Vertical", 19),
    Sketcher.Constraint("Horizontal", 20),
    Sketcher.Constraint("Vertical", 21),
    Sketcher.Constraint("Vertical", 24),
    Sketcher.Constraint("Vertical", 25),
    Sketcher.Constraint("Vertical", 28),
    Sketcher.Constraint("Horizontal", 29),
    Sketcher.Constraint("Vertical", 30),
    Sketcher.Constraint("Horizontal", 31),
    Sketcher.Constraint("Horizontal", 34),
    Sketcher.Constraint("Coincident", 11, 3, 8, 3),
    Sketcher.Constraint("Coincident", 22, 3, 16, 3),
    Sketcher.Constraint("Coincident", 32, 3, 26, 3),
    Sketcher.Constraint("Equal", 3, 4),
    Sketcher.Constraint("Equal", 4, 8),
    Sketcher.Constraint("Equal", 8, 9),
    Sketcher.Constraint("Equal", 9, 11),
    Sketcher.Constraint("Equal", 11, 12),
    Sketcher.Constraint("Equal", 12, 16),
    Sketcher.Constraint("Equal", 16, 17),
    Sketcher.Constraint("Equal", 17, 22),
    Sketcher.Constraint("Equal", 22, 23),
    Sketcher.Constraint("Equal", 23, 26),
    Sketcher.Constraint("Equal", 26, 27),
    Sketcher.Constraint("Equal", 27, 32),
    Sketcher.Constraint("Equal", 32, 33),
    Sketcher.Constraint("PointOnObject", 0, 2, -1),
    Sketcher.Constraint("PointOnObject", 5, 2, -1),
    Sketcher.Constraint("PointOnObject", 30, 2, -2),
    Sketcher.Constraint("Horizontal", 4, 3, 8, 3),
    Sketcher.Constraint("Horizontal", 2, 2, 4, 1),
    Sketcher.Constraint("Horizontal", 4, 1, 7, 2),
    Sketcher.Constraint("Horizontal", 7, 2, 9, 1),
    Sketcher.Constraint("Horizontal", 12, 3, 11, 1),
    Sketcher.Constraint("Horizontal", 23, 3, 16, 1),
    Sketcher.Constraint("Horizontal", 21, 2, 23, 1),
    Sketcher.Constraint("Horizontal", 19, 2, 26, 1),
    Sketcher.Constraint("Horizontal", 25, 2, 27, 1),
    Sketcher.Constraint("Horizontal", 24, 2, 28, 2),
    Sketcher.Constraint("Horizontal", 33, 3, 32, 1),
    Sketcher.Constraint("Vertical", 12, 3, 16, 3),
    Sketcher.Constraint("Vertical", 4, 3, 3, 1),
    Sketcher.Constraint("Vertical", 23, 3, 8, 1),
    Sketcher.Constraint("Vertical", 10, 2, 12, 1),
    Sketcher.Constraint("Vertical", 12, 1, 15, 2),
    Sketcher.Constraint("Vertical", 15, 2, 17, 1),
    Sketcher.Constraint("Vertical", 14, 2, 18, 2),
    Sketcher.Constraint("Vertical", 9, 1, 20, 2),
    Sketcher.Constraint("Vertical", 8, 1, 22, 1),
    Sketcher.Constraint("Vertical", 33, 3, 26, 1),
    Sketcher.Constraint("Vertical", 31, 2, 33, 1),
    Sketcher.Constraint("Equal", 20, 29),
    Sketcher.Constraint("Equal", 29, 14),
    Sketcher.Constraint("Equal", 19, 25),
    Sketcher.Constraint("Equal", 28, 30),
    Sketcher.Constraint("Radius", 3, 2.5),
    Sketcher.Constraint("DistanceX", 1, 1, 1, 2, 3.0),
    Sketcher.Constraint("DistanceX", 10, 2, 10, 1, 4.0),
    Sketcher.Constraint("DistanceX", 31, 1, 31, 2, 6.5),
    Sketcher.Constraint("DistanceY", 0, 2, 0, 1, 1.1),
    Sketcher.Constraint("DistanceX", -1, 1, 3, 3, 38.0),
    Sketcher.Constraint("DistanceX", -1, 1, 8, 3, 63.0),
    Sketcher.Constraint("DistanceY", 8, 3, 16, 3, 58.0),
])
sketch10.setExpression("Constraints[101]", "Params.sketch10_radius")
sketch10.setExpression("Constraints[102]", "Params.sketch10_width")
sketch10.setExpression("Constraints[103]", "Params.sketch10_width2")
sketch10.setExpression("Constraints[104]", "Params.sketch10_width3")
sketch10.setExpression("Constraints[105]", "Params.sketch10_height")
pad7 = body.newObject("PartDesign::Pad", "Pad006")
pad7.Profile = sketch10
pad7.setExpression("Length", "Params.pad7_length")
pad7.Reversed = True

# Sketch on XZ plane
sketch11 = body.newObject("Sketcher::SketchObject", "Sketch010")
sketch11.AttachmentSupport = (doc.getObject("XZ_Plane"), [""])
sketch11.MapMode = "FlatFace"
sketch11.AttachmentOffset = App.Placement(App.Vector(0, 0, -64.8), App.Rotation())
sketch11.addGeometry([
    Part.ArcOfCircle(Part.Circle(App.Vector(34.5, -79, 0), App.Vector(0, 0, 1), 67.973667), math.radians(58.56931), math.radians(121.43069)),
    Part.ArcOfCircle(Part.Circle(App.Vector(34.5, -79, 0), App.Vector(0, 0, 1), 67.973667), math.radians(121.43069), math.radians(180)),
    Part.ArcOfCircle(Part.Circle(App.Vector(34.5, -79, 0), App.Vector(0, 0, 1), 67.973667), math.radians(180), math.radians(418.56931)),
], False)
sketch11.addConstraint([
    Sketcher.Constraint("Tangent", 0, 2, 1, 1),
    Sketcher.Constraint("Tangent", 1, 2, 2, 1),
    Sketcher.Constraint("Tangent", 2, 2, 0, 1),
    Sketcher.Constraint("Horizontal", 2, 3, 1, 2),
    Sketcher.Constraint("Horizontal", 0, 2, 2, 2),
    Sketcher.Constraint("DistanceY", 0, 3, -1, 1, 79.0),
    Sketcher.Constraint("DistanceY", 0, 2, -1, 1, 21.0),
    Sketcher.Constraint("DistanceX", -1, 1, 0, 3, 34.5),
    Sketcher.Constraint("Radius", 0, 67.973667),
])
pocket4 = body.newObject("PartDesign::Pocket", "Pocket003")
pocket4.Profile = sketch11
pocket4.setExpression("Length", "Params.pocket4_length")
doc.recompute()

fillet = body.newObject("PartDesign::Fillet", "Fillet")
fillet.Base = (pocket4, edges_at(pocket4, [
    (0, 65.1, -9.637),
    (69, 65.1, -9.637),
    (69, 0, -9.637),
    (0, 0, -9.637),
    (-2.1, -2.1, -10.5),
    (71.1, -2.1, -10.5),
    (71.1, 67.2, -10.5),
    (-2.1, 67.2, -10.5),
]))
fillet.setExpression("Radius", "Params.fillet_radius")
doc.recompute()

fillet2 = body.newObject("PartDesign::Fillet", "Fillet001")
fillet2.Base = (fillet, edges_at(fillet, [
    (70.1, 66.2, -20.25),
    (70.1, -1.1, -20.25),
    (-1.1, -1.1, -20.25),
    (-1.1, 66.2, -20.25),
]))
fillet2.setExpression("Radius", "Params.fillet2_radius")

doc.recompute()
